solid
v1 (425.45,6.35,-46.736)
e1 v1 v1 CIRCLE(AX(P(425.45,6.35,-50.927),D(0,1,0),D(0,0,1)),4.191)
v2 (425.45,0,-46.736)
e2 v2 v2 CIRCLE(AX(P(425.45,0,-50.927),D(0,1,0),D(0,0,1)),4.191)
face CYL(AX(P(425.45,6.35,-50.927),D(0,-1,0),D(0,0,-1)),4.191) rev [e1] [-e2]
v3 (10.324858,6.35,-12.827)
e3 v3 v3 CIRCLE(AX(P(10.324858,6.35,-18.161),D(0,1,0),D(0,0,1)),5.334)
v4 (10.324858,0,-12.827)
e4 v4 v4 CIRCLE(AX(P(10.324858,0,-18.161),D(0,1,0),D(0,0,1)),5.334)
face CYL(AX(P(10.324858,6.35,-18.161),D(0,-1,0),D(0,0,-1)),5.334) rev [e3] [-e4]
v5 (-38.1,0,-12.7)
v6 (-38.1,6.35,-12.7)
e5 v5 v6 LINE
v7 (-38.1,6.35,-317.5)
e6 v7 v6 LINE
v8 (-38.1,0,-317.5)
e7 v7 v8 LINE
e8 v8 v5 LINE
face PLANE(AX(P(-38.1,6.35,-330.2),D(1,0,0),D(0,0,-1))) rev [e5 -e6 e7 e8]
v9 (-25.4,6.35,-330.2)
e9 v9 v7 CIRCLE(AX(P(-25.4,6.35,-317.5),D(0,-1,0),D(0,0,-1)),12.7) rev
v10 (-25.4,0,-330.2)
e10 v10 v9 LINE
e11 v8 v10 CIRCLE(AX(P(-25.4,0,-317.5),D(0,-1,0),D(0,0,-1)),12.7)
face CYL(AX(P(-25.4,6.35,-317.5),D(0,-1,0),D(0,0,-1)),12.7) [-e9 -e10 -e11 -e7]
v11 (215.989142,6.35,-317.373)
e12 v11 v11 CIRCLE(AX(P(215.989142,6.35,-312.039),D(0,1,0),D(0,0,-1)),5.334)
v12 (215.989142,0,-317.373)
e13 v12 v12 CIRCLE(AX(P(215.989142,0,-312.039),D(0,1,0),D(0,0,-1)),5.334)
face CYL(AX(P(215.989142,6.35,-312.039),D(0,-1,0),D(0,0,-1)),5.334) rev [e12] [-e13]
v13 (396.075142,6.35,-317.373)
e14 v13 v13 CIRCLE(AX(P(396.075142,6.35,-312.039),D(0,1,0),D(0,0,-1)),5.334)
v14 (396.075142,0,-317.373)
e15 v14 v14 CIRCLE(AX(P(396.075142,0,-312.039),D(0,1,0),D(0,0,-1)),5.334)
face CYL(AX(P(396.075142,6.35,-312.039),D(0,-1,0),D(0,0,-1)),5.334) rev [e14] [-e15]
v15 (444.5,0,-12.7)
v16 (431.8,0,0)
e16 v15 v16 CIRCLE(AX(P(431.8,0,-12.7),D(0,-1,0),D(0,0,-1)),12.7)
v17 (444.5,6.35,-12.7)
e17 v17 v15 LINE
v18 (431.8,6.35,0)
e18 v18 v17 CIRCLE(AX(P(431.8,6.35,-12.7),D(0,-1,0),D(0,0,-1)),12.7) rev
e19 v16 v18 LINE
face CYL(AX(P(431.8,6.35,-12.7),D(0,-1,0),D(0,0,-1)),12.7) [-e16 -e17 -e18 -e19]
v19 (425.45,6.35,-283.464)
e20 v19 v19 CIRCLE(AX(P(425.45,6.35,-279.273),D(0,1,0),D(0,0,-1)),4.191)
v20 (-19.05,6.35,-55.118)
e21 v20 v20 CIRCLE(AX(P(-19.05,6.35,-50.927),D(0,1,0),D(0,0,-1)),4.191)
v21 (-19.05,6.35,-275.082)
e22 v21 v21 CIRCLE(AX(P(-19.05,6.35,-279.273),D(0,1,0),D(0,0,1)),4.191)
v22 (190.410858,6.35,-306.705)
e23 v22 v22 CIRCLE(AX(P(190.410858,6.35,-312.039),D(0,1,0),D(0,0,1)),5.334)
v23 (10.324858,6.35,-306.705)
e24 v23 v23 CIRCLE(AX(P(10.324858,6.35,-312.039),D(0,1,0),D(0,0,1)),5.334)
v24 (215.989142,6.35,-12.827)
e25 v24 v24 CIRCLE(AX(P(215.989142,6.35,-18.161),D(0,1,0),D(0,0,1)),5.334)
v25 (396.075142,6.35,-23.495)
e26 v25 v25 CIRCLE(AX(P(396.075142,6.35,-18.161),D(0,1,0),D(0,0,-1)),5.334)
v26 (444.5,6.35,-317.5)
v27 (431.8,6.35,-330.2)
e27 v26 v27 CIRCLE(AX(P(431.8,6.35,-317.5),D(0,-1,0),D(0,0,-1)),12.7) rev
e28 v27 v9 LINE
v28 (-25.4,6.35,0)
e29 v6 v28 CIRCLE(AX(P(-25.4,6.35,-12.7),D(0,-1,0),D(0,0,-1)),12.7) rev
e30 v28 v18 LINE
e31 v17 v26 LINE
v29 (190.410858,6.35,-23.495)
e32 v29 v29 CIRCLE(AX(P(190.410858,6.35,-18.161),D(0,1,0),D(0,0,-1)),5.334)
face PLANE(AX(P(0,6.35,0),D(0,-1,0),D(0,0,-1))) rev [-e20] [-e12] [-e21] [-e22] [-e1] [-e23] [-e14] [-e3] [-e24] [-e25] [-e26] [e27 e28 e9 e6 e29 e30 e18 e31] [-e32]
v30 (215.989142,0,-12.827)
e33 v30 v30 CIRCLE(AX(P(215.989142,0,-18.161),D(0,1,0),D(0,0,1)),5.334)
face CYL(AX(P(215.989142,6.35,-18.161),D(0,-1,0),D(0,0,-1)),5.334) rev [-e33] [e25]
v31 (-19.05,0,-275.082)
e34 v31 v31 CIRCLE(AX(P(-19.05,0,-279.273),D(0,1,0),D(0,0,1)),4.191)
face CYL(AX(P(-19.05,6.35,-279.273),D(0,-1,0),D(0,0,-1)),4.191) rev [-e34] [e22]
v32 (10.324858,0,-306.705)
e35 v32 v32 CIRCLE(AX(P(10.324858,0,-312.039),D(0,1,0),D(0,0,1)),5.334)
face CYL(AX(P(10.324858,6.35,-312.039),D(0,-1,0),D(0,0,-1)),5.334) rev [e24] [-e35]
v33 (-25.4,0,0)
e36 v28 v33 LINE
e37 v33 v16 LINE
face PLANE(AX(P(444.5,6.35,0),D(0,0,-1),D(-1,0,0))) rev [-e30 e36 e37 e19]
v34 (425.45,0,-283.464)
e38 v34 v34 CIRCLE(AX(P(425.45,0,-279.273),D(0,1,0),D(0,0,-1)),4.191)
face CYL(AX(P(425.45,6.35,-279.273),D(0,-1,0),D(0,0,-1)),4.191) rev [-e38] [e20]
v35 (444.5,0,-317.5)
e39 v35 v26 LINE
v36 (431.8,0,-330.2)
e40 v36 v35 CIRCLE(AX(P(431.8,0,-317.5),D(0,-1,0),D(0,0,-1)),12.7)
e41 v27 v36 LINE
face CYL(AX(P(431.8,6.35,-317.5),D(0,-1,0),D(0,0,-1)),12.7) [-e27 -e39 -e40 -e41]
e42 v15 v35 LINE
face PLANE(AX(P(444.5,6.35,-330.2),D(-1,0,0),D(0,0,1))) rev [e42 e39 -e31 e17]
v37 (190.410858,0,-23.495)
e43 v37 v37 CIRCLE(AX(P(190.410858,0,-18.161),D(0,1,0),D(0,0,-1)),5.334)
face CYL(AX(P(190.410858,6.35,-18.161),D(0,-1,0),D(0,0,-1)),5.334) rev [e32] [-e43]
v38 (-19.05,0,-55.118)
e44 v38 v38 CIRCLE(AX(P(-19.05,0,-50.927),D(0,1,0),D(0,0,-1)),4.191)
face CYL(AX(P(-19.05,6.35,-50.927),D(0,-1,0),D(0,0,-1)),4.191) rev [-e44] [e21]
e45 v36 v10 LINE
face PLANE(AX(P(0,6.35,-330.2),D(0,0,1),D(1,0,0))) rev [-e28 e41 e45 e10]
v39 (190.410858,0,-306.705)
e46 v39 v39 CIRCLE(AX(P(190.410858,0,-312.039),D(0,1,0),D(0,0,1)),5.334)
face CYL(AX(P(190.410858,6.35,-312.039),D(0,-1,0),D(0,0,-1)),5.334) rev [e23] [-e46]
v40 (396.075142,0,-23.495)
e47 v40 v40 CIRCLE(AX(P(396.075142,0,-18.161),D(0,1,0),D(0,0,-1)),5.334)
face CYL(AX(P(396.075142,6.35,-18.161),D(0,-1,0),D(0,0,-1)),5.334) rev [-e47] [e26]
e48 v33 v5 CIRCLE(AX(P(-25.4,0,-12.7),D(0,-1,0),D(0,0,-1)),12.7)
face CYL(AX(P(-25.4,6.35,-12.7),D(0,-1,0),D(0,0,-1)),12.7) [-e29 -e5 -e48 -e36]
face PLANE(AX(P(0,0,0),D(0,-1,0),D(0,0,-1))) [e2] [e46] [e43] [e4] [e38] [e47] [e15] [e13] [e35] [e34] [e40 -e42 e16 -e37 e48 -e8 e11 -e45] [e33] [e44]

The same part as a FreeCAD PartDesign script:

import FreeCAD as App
import Part
import Sketcher
Q = App.Units.Quantity


def edges_at(feature, points):
    """Names of the edges that pass closest to the given points."""
    edges = feature.Shape.Edges
    near = lambda p: min(range(len(edges)), key=lambda i: edges[i].distToShape(Part.Vertex(*p))[0])
    return sorted({f"Edge{near(p) + 1}" for p in points})

doc = App.newDocument("Part")
body = doc.addObject("PartDesign::Body", "Body")

sketch1 = doc.addObject("Sketcher::SketchObject", "Sketch")
body.addObject(sketch1)
sketch1.AttachmentSupport = (doc.XZ_Plane, [""])
sketch1.MapMode = "FlatFace"
sketch1.addGeometry([
    Part.LineSegment(App.Vector(444.5, 0, 0), App.Vector(444.5, -330.2, 0)),
    Part.LineSegment(App.Vector(444.5, -330.2, 0), App.Vector(-38.1, -330.2, 0)),
    Part.LineSegment(App.Vector(-38.1, -330.2, 0), App.Vector(-38.1, 0, 0)),
    Part.LineSegment(App.Vector(-38.1, 0, 0), App.Vector(444.5, 0, 0)),
    Part.Circle(App.Vector(10.3, -18.2, 0), App.Vector(0, 0, 1), 5.3),
    Part.Circle(App.Vector(-19.1, -50.9, 0), App.Vector(0, 0, 1), 4.2),
    Part.Circle(App.Vector(190.4, -18.2, 0), App.Vector(0, 0, 1), 5.3),
    Part.Circle(App.Vector(216, -18.2, 0), App.Vector(0, 0, 1), 5.3),
    Part.Circle(App.Vector(396.1, -18.2, 0), App.Vector(0, 0, 1), 5.3),
    Part.Circle(App.Vector(425.4, -50.9, 0), App.Vector(0, 0, 1), 4.2),
    Part.Circle(App.Vector(-19.1, -279.3, 0), App.Vector(0, 0, 1), 4.2),
    Part.Circle(App.Vector(10.3, -312, 0), App.Vector(0, 0, 1), 5.3),
    Part.Circle(App.Vector(190.4, -312, 0), App.Vector(0, 0, 1), 5.3),
    Part.Circle(App.Vector(216, -312, 0), App.Vector(0, 0, 1), 5.3),
    Part.Circle(App.Vector(425.4, -279.3, 0), App.Vector(0, 0, 1), 4.2),
    Part.Circle(App.Vector(396.1, -312, 0), App.Vector(0, 0, 1), 5.3),
], False)
sketch1.addConstraint([
    Sketcher.Constraint("Coincident", 0, 2, 1, 1),
    Sketcher.Constraint("Coincident", 1, 2, 2, 1),
    Sketcher.Constraint("Coincident", 2, 2, 3, 1),
    Sketcher.Constraint("Coincident", 3, 2, 0, 1),
    Sketcher.Constraint("Vertical", 0),
    Sketcher.Constraint("Horizontal", 1),
    Sketcher.Constraint("Vertical", 2),
    Sketcher.Constraint("Horizontal", 3),
    Sketcher.Constraint("Equal", 4, 6),
    Sketcher.Constraint("Equal", 6, 7),
    Sketcher.Constraint("Equal", 7, 8),
    Sketcher.Constraint("Equal", 5, 9),
    Sketcher.Constraint("Equal", 9, 10),
    Sketcher.Constraint("Equal", 8, 11),
    Sketcher.Constraint("Equal", 11, 12),
    Sketcher.Constraint("Equal", 12, 13),
    Sketcher.Constraint("Equal", 10, 14),
    Sketcher.Constraint("Equal", 13, 15),
    Sketcher.Constraint("PointOnObject", 2, 2, -1),
    Sketcher.Constraint("Horizontal", 4, 3, 6, 3),
    Sketcher.Constraint("Horizontal", 6, 3, 7, 3),
    Sketcher.Constraint("Horizontal", 7, 3, 8, 3),
    Sketcher.Constraint("Horizontal", 5, 3, 9, 3),
    Sketcher.Constraint("Horizontal", 11, 3, 12, 3),
    Sketcher.Constraint("Horizontal", 12, 3, 13, 3),
    Sketcher.Constraint("Horizontal", 10, 3, 14, 3),
    Sketcher.Constraint("Horizontal", 13, 3, 15, 3),
    Sketcher.Constraint("Vertical", 5, 3, 10, 3),
    Sketcher.Constraint("Vertical", 4, 3, 11, 3),
    Sketcher.Constraint("Vertical", 6, 3, 12, 3),
    Sketcher.Constraint("Vertical", 7, 3, 13, 3),
    Sketcher.Constraint("Vertical", 9, 3, 14, 3),
    Sketcher.Constraint("Vertical", 8, 3, 15, 3),
    Sketcher.Constraint("Diameter", 4, Q("0.42 in")),
    Sketcher.Constraint("Diameter", 5, Q("0.33 in")),
    Sketcher.Constraint("DistanceX", 1, 2, 1, 1, Q("19 in")),
    Sketcher.Constraint("DistanceY", 0, 2, 0, 1, Q("13 in")),
    Sketcher.Constraint("DistanceX", -1, 1, 0, 2, Q("17.5 in")),
    Sketcher.Constraint("DistanceX", 5, 3, 9, 3, Q("17.5 in")),
    Sketcher.Constraint("DistanceX", 5, 3, -1, 1, Q("0.75 in")),
    Sketcher.Constraint("DistanceY", 5, 3, 4, 3, Q("1.29 in")),
    Sketcher.Constraint("DistanceX", 4, 3, 6, 3, Q("7.09 in")),
    Sketcher.Constraint("DistanceX", 7, 3, 8, 3, Q("7.09 in")),
    Sketcher.Constraint("DistanceY", 10, 3, 5, 3, Q("8.99 in")),
    Sketcher.Constraint("DistanceY", 11, 3, 10, 3, Q("1.29 in")),
    Sketcher.Constraint("DistanceY", 4, 3, -1, 1, Q("0.715 in")),
    Sketcher.Constraint("DistanceX", -1, 1, 4, 3, 10.324858),
    Sketcher.Constraint("DistanceX", -1, 1, 7, 3, 215.989142),
])
pad1 = doc.addObject("PartDesign::Pad", "Pad")
body.addObject(pad1)
pad1.Profile = sketch1
pad1.Length = Q("0.25 in")
pad1.Reversed = True
doc.recompute()

fillet = doc.addObject("PartDesign::Fillet", "Fillet")
body.addObject(fillet)
fillet.Base = (pad1, edges_at(pad1, [
    (-38.1, 3.175, 0),
    (-38.1, 3.175, -330.2),
    (444.5, 3.175, -330.2),
    (444.5, 3.175, 0),
]))
fillet.Radius = Q("0.5 in")

doc.recompute()
